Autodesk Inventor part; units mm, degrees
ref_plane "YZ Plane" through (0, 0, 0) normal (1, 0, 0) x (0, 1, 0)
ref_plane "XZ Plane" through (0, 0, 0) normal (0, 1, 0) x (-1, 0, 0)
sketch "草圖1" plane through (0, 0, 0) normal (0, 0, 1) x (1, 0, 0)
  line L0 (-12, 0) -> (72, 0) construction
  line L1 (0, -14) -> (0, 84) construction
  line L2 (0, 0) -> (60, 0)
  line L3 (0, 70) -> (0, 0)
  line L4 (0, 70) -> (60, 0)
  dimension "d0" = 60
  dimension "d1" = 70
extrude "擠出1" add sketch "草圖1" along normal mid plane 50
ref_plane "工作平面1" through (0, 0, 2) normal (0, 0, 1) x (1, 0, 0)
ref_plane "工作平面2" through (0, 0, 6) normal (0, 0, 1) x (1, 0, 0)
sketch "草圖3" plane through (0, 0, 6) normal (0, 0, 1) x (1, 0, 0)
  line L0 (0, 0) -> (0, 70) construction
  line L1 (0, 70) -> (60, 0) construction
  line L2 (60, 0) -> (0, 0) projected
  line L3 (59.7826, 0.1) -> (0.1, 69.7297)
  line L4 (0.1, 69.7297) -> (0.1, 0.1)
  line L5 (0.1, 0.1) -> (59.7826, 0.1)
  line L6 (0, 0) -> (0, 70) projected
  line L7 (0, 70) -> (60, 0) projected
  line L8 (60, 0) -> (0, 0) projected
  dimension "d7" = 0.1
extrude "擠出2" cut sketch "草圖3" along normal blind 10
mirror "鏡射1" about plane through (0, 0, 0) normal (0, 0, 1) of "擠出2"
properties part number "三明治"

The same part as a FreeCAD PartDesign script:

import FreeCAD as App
import Part
import Sketcher


def add_polygon(sketch, points):
    """Adds a closed chain of lines whose ends are joined by coincident constraints."""
    first, n = sketch.GeometryCount, len(points)
    for a, b in zip(points, points[1:] + points[:1]):
        sketch.addGeometry(Part.LineSegment(App.Vector(*a, 0), App.Vector(*b, 0)), False)
    for i in range(n):
        sketch.addConstraint(Sketcher.Constraint("Coincident", first + i, 2, first + (i + 1) % n, 1))

doc = App.newDocument("Part")
body = doc.addObject("PartDesign::Body", "Body")

# Sketch on XY plane
sketch1 = body.newObject("Sketcher::SketchObject", "Sketch")
sketch1.AttachmentSupport = (doc.getObject("XY_Plane"), [""])
sketch1.MapMode = "FlatFace"
add_polygon(sketch1, [(0, 70), (0, 0), (60, 0)])  # lines 0-2
sketch1.addConstraint([
    Sketcher.Constraint("Vertical", 0),
    Sketcher.Constraint("Horizontal", 1),
    Sketcher.Constraint("Coincident", 0, 2, -1, 1),
    Sketcher.Constraint("DistanceX", 1, 1, 1, 2, 60.0),
    Sketcher.Constraint("DistanceY", 0, 2, 0, 1, 70.0),
])
pad1 = body.newObject("PartDesign::Pad", "Pad")
pad1.Profile = sketch1
pad1.Length = 50
pad1.Midplane = True

# Sketch on XY plane
sketch2 = body.newObject("Sketcher::SketchObject", "Sketch001")
sketch2.AttachmentSupport = (doc.getObject("XY_Plane"), [""])
sketch2.MapMode = "FlatFace"
sketch2.AttachmentOffset = App.Placement(App.Vector(0, 0, 6), App.Rotation())
add_polygon(sketch2, [(0, 0), (60, 0), (0, 70)])  # lines 0-2
add_polygon(sketch2, [(0, 70), (60, 0), (0, 0)])  # lines 3-5
sketch2.addConstraint([
    Sketcher.Constraint("Horizontal", 0),
    Sketcher.Constraint("Vertical", 2),
    Sketcher.Constraint("Horizontal", 4),
    Sketcher.Constraint("Vertical", 5),
    Sketcher.Constraint("Coincident", 2, 2, -1, 1),
    Sketcher.Constraint("Parallel", 1, 3),
    Sketcher.Constraint("DistanceY", -1, 1, 3, 2, 0.1),
    Sketcher.Constraint("DistanceX", -1, 1, 4, 2, 0.1),
    Sketcher.Constraint("DistanceX", 0, 1, 0, 2, 60.0),
    Sketcher.Constraint("DistanceY", 2, 2, 2, 1, 70.0),
    Sketcher.Constraint("DistanceX", 4, 2, 4, 1, 59.6826),
])
pocket1 = body.newObject("PartDesign::Pocket", "Pocket")
pocket1.Profile = sketch2
pocket1.Length = 10
pocket1.Reversed = True
doc.recompute()

mirrored = body.newObject("PartDesign::Mirrored", "Mirrored")
mirrored.Originals = [pocket1]
mirrored.MirrorPlane = (doc.getObject("XY_Plane"), [""])
body.Tip = mirrored

doc.recompute()
